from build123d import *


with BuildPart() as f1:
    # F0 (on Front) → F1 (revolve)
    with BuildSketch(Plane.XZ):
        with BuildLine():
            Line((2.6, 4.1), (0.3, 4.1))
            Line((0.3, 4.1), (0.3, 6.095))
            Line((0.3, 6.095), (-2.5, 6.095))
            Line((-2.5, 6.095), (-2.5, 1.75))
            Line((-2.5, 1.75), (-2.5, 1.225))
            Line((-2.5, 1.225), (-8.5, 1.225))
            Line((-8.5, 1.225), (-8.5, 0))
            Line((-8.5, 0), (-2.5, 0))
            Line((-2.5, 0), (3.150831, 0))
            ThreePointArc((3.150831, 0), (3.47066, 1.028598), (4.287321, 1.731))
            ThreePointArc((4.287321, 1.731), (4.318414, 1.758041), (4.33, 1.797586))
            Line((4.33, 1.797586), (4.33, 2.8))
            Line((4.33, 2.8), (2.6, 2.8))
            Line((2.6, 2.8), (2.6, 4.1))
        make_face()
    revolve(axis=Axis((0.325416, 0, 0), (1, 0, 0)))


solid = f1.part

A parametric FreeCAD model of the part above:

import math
import FreeCAD as App
import Part
import Sketcher
Q = App.Units.Quantity

doc = App.newDocument("Part")
body = doc.addObject("PartDesign::Body", "Body")

sketch1 = body.newObject("Sketcher::SketchObject", "Sketch")
sketch1.AttachmentSupport = (doc.getObject("XZ_Plane"), [""])
sketch1.MapMode = "FlatFace"
sketch1.addGeometry([
    Part.LineSegment(App.Vector(2.6, 4.1, 0), App.Vector(0.3, 4.1, 0)),
    Part.LineSegment(App.Vector(0.3, 4.1, 0), App.Vector(0.3, 6.095, 0)),
    Part.LineSegment(App.Vector(0.3, 6.095, 0), App.Vector(-2.5, 6.095, 0)),
    Part.LineSegment(App.Vector(-2.5, 6.095, 0), App.Vector(-2.5, 1.225, 0)),
    Part.LineSegment(App.Vector(-2.5, 1.225, 0), App.Vector(-8.5, 1.225, 0)),
    Part.LineSegment(App.Vector(-8.5, 1.225, 0), App.Vector(-8.5, 0, 0)),
    Part.LineSegment(App.Vector(-8.5, 0, 0), App.Vector(3.150831, 0, 0)),
    Part.ArcOfCircle(Part.Circle(App.Vector(5.102601, -0.042855, 0), App.Vector(0, 0, 1), 1.95224), math.radians(114.683944), math.radians(178.742164)),
    Part.ArcOfCircle(Part.Circle(App.Vector(4.256717, 1.797587, 0), App.Vector(0, 0, 1), 0.073283), math.radians(-65.315726), math.radians(-0.000814)),
    Part.LineSegment(App.Vector(4.33, 1.797586, 0), App.Vector(4.33, 2.8, 0)),
    Part.LineSegment(App.Vector(4.33, 2.8, 0), App.Vector(2.6, 2.8, 0)),
    Part.LineSegment(App.Vector(2.6, 2.8, 0), App.Vector(2.6, 4.1, 0)),
], False)
sketch1.addConstraint([
    Sketcher.Constraint("Coincident", 0, 2, 1, 1),
    Sketcher.Constraint("Coincident", 1, 2, 2, 1),
    Sketcher.Constraint("Coincident", 2, 2, 3, 1),
    Sketcher.Constraint("Coincident", 3, 2, 4, 1),
    Sketcher.Constraint("Coincident", 4, 2, 5, 1),
    Sketcher.Constraint("Coincident", 5, 2, 6, 1),
    Sketcher.Constraint("Coincident", 6, 2, 7, 2),
    Sketcher.Constraint("Coincident", 7, 1, 8, 1),
    Sketcher.Constraint("Coincident", 8, 2, 9, 1),
    Sketcher.Constraint("Coincident", 9, 2, 10, 1),
    Sketcher.Constraint("Coincident", 10, 2, 11, 1),
    Sketcher.Constraint("Coincident", 11, 2, 0, 1),
    Sketcher.Constraint("Horizontal", 0),
    Sketcher.Constraint("Vertical", 1),
    Sketcher.Constraint("Horizontal", 2),
    Sketcher.Constraint("Vertical", 3),
    Sketcher.Constraint("Horizontal", 4),
    Sketcher.Constraint("Vertical", 5),
    Sketcher.Constraint("Horizontal", 6),
    Sketcher.Constraint("Vertical", 9),
    Sketcher.Constraint("Horizontal", 10),
    Sketcher.Constraint("Vertical", 11),
    Sketcher.Constraint("PointOnObject", 5, 2, -1),
    Sketcher.Constraint("DistanceX", 4, 2, 4, 1, Q("6 mm")),
    Sketcher.Constraint("DistanceX", 0, 2, 0, 1, Q("2.3 mm")),
    Sketcher.Constraint("DistanceX", 2, 2, 2, 1, Q("2.8 mm")),
    Sketcher.Constraint("DistanceY", 11, 1, 11, 2, Q("1.3 mm")),
    Sketcher.Constraint("DistanceX", 10, 2, 10, 1, Q("1.73 mm")),
    Sketcher.Constraint("DistanceY", 3, 2, 3, 1, Q("4.87 mm")),
    Sketcher.Constraint("DistanceX", -1, 1, 0, 2, Q("0.3 mm")),
    Sketcher.Constraint("DistanceY", -1, 1, 0, 2, Q("4.1 mm")),
    Sketcher.Constraint("DistanceY", 1, 1, 1, 2, Q("1.995 mm")),
    Sketcher.Constraint("Radius", 7, Q("1.95224 mm")),
    Sketcher.Constraint("DistanceY", -1, 1, 7, 1, Q("1.731 mm")),
    Sketcher.Constraint("Radius", 8, Q("0.073283 mm")),
    Sketcher.Constraint("DistanceX", 6, 1, 6, 2, Q("11.650831 mm")),
    Sketcher.Constraint("DistanceY", 9, 1, 9, 2, Q("1.002414 mm")),
    Sketcher.Constraint("DistanceX", -1, 1, 7, 1, Q("4.287321 mm")),
])
revolution = body.newObject("PartDesign::Revolution", "Revolution")
revolution.Profile = sketch1
revolution.ReferenceAxis = (sketch1, ["H_Axis"])
revolution.Angle = 360

doc.recompute()
